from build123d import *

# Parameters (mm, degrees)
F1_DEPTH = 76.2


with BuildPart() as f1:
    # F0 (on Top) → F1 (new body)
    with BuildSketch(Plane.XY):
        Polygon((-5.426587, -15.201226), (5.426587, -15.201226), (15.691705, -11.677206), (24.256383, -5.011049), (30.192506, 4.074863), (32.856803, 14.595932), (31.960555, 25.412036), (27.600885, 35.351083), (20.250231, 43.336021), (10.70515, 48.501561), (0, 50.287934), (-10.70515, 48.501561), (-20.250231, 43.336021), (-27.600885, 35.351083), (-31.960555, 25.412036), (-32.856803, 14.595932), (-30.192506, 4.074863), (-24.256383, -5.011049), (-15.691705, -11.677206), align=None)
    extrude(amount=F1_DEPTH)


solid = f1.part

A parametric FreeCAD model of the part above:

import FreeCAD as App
import Part
import Sketcher
Q = App.Units.Quantity

doc = App.newDocument("Part")
body = doc.addObject("PartDesign::Body", "Body")

sketch1 = doc.addObject("Sketcher::SketchObject", "Sketch")
body.addObject(sketch1)
sketch1.AttachmentSupport = (doc.XY_Plane, [""])
sketch1.MapMode = "FlatFace"
sketch1.addGeometry([
    Part.LineSegment(App.Vector(-5, -15, 0), App.Vector(5, -15, 0)),
    Part.LineSegment(App.Vector(5, -15, 0), App.Vector(16, -12, 0)),
    Part.LineSegment(App.Vector(16, -12, 0), App.Vector(24, -5, 0)),
    Part.LineSegment(App.Vector(24, -5, 0), App.Vector(30, 4, 0)),
    Part.LineSegment(App.Vector(30, 4, 0), App.Vector(33, 15, 0)),
    Part.LineSegment(App.Vector(33, 15, 0), App.Vector(32, 25, 0)),
    Part.LineSegment(App.Vector(32, 25, 0), App.Vector(28, 35, 0)),
    Part.LineSegment(App.Vector(28, 35, 0), App.Vector(20, 43, 0)),
    Part.LineSegment(App.Vector(20, 43, 0), App.Vector(11, 49, 0)),
    Part.LineSegment(App.Vector(11, 49, 0), App.Vector(0, 50, 0)),
    Part.LineSegment(App.Vector(0, 50, 0), App.Vector(-11, 49, 0)),
    Part.LineSegment(App.Vector(-11, 49, 0), App.Vector(-20, 43, 0)),
    Part.LineSegment(App.Vector(-20, 43, 0), App.Vector(-28, 35, 0)),
    Part.LineSegment(App.Vector(-28, 35, 0), App.Vector(-32, 25, 0)),
    Part.LineSegment(App.Vector(-32, 25, 0), App.Vector(-33, 15, 0)),
    Part.LineSegment(App.Vector(-33, 15, 0), App.Vector(-30, 4, 0)),
    Part.LineSegment(App.Vector(-30, 4, 0), App.Vector(-24, -5, 0)),
    Part.LineSegment(App.Vector(-24, -5, 0), App.Vector(-16, -12, 0)),
    Part.LineSegment(App.Vector(-16, -12, 0), App.Vector(-5, -15, 0)),
], False)
sketch1.addConstraint([
    Sketcher.Constraint("Coincident", 0, 2, 1, 1),
    Sketcher.Constraint("Coincident", 1, 2, 2, 1),
    Sketcher.Constraint("Coincident", 2, 2, 3, 1),
    Sketcher.Constraint("Coincident", 3, 2, 4, 1),
    Sketcher.Constraint("Coincident", 4, 2, 5, 1),
    Sketcher.Constraint("Coincident", 5, 2, 6, 1),
    Sketcher.Constraint("Coincident", 6, 2, 7, 1),
    Sketcher.Constraint("Coincident", 7, 2, 8, 1),
    Sketcher.Constraint("Coincident", 8, 2, 9, 1),
    Sketcher.Constraint("Coincident", 9, 2, 10, 1),
    Sketcher.Constraint("Coincident", 10, 2, 11, 1),
    Sketcher.Constraint("Coincident", 11, 2, 12, 1),
    Sketcher.Constraint("Coincident", 12, 2, 13, 1),
    Sketcher.Constraint("Coincident", 13, 2, 14, 1),
    Sketcher.Constraint("Coincident", 14, 2, 15, 1),
    Sketcher.Constraint("Coincident", 15, 2, 16, 1),
    Sketcher.Constraint("Coincident", 16, 2, 17, 1),
    Sketcher.Constraint("Coincident", 17, 2, 18, 1),
    Sketcher.Constraint("Coincident", 18, 2, 0, 1),
    Sketcher.Constraint("Horizontal", 0),
    Sketcher.Constraint("Symmetric", 8, 2, 10, 2, -2),
    Sketcher.Constraint("Symmetric", 7, 2, 11, 2, -2),
    Sketcher.Constraint("Symmetric", 6, 2, 12, 2, -2),
    Sketcher.Constraint("Symmetric", 5, 2, 13, 2, -2),
    Sketcher.Constraint("Symmetric", 4, 2, 14, 2, -2),
    Sketcher.Constraint("Symmetric", 3, 2, 15, 2, -2),
    Sketcher.Constraint("Symmetric", 2, 2, 16, 2, -2),
    Sketcher.Constraint("Symmetric", 1, 2, 17, 2, -2),
    Sketcher.Constraint("PointOnObject", 9, 2, -2),
    Sketcher.Constraint("Equal", 1, 2),
    Sketcher.Constraint("Equal", 2, 3),
    Sketcher.Constraint("Equal", 3, 4),
    Sketcher.Constraint("Equal", 4, 5),
    Sketcher.Constraint("Equal", 5, 6),
    Sketcher.Constraint("Equal", 6, 7),
    Sketcher.Constraint("Equal", 7, 8),
    Sketcher.Constraint("Equal", 8, 9),
    Sketcher.Constraint("Equal", 17, 18),
    Sketcher.Constraint("DistanceX", 1, 2, 3, 2, Q("14.500801 mm")),
    Sketcher.Constraint("DistanceX", 1, 2, 4, 2, Q("17.165098 mm")),
    Sketcher.Constraint("DistanceY", 3, 2, 8, 2, Q("44.426698 mm")),
    Sketcher.Constraint("DistanceX", 10, 2, 8, 2, Q("21.4103 mm")),
    Sketcher.Constraint("DistanceX", 0, 1, 0, 2, Q("10.853174 mm")),
    Sketcher.Constraint("DistanceY", 2, 2, -1, 1, Q("5.011049 mm")),
    Sketcher.Constraint("DistanceX", -1, 1, 7, 2, Q("20.250231 mm")),
    Sketcher.Constraint("DistanceY", -1, 1, 7, 2, Q("43.336021 mm")),
    Sketcher.Constraint("DistanceY", -1, 1, 8, 2, Q("48.501561 mm")),
    Sketcher.Constraint("DistanceX", 0, 2, 1, 2, Q("10.265118 mm")),
    Sketcher.Constraint("DistanceX", 3, 2, 5, 2, Q("1.768049 mm")),
])
pad1 = doc.addObject("PartDesign::Pad", "Pad")
body.addObject(pad1)
pad1.Profile = sketch1
pad1.Length = Q("3 in")

doc.recompute()
